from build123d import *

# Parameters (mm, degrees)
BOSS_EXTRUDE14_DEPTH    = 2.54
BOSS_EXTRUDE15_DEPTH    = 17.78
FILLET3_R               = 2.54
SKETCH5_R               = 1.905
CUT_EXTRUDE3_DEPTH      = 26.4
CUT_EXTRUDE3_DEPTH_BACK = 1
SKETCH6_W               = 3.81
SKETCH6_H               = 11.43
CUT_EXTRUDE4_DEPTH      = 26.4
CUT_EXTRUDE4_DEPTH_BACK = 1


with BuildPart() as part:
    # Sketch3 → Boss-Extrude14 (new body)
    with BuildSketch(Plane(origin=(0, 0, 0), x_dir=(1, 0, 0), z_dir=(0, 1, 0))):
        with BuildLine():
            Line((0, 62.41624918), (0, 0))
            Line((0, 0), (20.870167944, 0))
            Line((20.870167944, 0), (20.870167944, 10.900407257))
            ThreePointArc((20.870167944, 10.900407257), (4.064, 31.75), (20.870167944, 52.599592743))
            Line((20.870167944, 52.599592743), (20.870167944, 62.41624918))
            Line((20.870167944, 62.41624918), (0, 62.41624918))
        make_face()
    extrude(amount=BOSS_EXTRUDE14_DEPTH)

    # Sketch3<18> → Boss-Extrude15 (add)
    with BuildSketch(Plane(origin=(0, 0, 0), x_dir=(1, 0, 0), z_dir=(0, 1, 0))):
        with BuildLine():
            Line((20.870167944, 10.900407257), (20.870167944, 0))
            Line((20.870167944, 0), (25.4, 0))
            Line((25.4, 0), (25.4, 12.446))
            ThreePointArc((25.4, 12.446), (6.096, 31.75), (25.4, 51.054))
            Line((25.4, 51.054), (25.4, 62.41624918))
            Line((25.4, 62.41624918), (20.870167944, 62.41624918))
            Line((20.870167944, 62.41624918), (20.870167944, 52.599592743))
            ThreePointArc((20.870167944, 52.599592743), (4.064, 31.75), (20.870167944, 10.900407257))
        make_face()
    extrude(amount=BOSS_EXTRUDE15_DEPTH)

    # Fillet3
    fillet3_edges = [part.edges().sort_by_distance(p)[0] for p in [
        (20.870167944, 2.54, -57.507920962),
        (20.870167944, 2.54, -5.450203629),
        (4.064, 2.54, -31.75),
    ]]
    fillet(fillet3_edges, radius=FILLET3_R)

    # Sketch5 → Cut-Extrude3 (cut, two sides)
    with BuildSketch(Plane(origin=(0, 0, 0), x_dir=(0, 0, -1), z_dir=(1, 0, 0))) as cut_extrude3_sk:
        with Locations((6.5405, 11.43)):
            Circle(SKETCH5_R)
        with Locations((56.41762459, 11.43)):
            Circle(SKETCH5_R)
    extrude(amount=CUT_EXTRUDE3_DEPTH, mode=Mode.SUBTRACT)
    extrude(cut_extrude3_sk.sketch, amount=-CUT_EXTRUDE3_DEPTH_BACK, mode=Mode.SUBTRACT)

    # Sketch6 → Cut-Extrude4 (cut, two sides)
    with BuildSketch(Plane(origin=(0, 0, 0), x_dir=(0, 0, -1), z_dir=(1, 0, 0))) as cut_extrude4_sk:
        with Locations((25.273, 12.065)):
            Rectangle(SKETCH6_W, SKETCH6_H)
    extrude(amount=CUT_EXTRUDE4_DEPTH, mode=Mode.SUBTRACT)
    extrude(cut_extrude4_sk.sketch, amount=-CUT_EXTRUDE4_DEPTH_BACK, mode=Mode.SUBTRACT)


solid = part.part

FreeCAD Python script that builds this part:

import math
import FreeCAD as App
import Part
import Sketcher
from FreeCAD import Vector
Q = App.Units.Quantity


def edges_at(feature, points):
    """Names of the edges that pass closest to the given points."""
    edges = feature.Shape.Edges
    near = lambda p: min(range(len(edges)), key=lambda i: edges[i].distToShape(Part.Vertex(*p))[0])
    return sorted({f"Edge{near(p) + 1}" for p in points})


def add_polygon(sketch, points):
    """Adds a closed chain of lines whose ends are joined by coincident constraints."""
    first, n = sketch.GeometryCount, len(points)
    for a, b in zip(points, points[1:] + points[:1]):
        sketch.addGeometry(Part.LineSegment(App.Vector(*a, 0), App.Vector(*b, 0)), False)
    for i in range(n):
        sketch.addConstraint(Sketcher.Constraint("Coincident", first + i, 2, first + (i + 1) % n, 1))

doc = App.newDocument("Part")
body = doc.addObject("PartDesign::Body", "Body")

# Sketch on XZ plane
sketch1 = body.newObject("Sketcher::SketchObject", "Sketch")
sketch1.AttachmentSupport = (doc.getObject("XZ_Plane"), [""])
sketch1.MapMode = "FlatFace"
sketch1.addGeometry([
    Part.LineSegment(Vector(0, -62.416249, 0), Vector(0, 0, 0)),  # 0
    Part.LineSegment(Vector(0, 0, 0), Vector(20.870168, 0, 0)),  # 1
    Part.LineSegment(Vector(20.870168, 0, 0), Vector(20.870168, -10.900407, 0)),  # 2
    Part.ArcOfCircle(Part.Circle(Vector(25.4, -31.75, 0), Vector(0, 0, 1), 21.336), math.radians(102.25772), math.radians(257.74228)),  # 3
    Part.LineSegment(Vector(20.870168, -52.599593, 0), Vector(20.870168, -62.416249, 0)),  # 4
    Part.LineSegment(Vector(20.870168, -62.416249, 0), Vector(0, -62.416249, 0)),  # 5
], False)
sketch1.addConstraint([
    Sketcher.Constraint("Coincident", 0, 2, 1, 1),
    Sketcher.Constraint("Coincident", 1, 2, 2, 1),
    Sketcher.Constraint("Coincident", 2, 2, 3, 1),
    Sketcher.Constraint("Coincident", 3, 2, 4, 1),
    Sketcher.Constraint("Coincident", 4, 2, 5, 1),
    Sketcher.Constraint("Coincident", 5, 2, 0, 1),
    Sketcher.Constraint("Vertical", 0),
    Sketcher.Constraint("Horizontal", 1),
    Sketcher.Constraint("Vertical", 2),
    Sketcher.Constraint("Vertical", 4),
    Sketcher.Constraint("Horizontal", 5),
    Sketcher.Constraint("Coincident", 0, 2, -1, 1),
    Sketcher.Constraint("Vertical", 2, 2, 3, 2),
    Sketcher.Constraint("Radius", 3, Q("0.84 in")),
    Sketcher.Constraint("DistanceX", -1, 1, 3, 3, Q("1 in")),
    Sketcher.Constraint("DistanceY", 3, 3, -1, 1, Q("1.25 in")),
    Sketcher.Constraint("DistanceY", 0, 1, 0, 2, Q("62.416249 mm")),
    Sketcher.Constraint("DistanceX", 1, 1, 1, 2, Q("20.870168 mm")),
])
pad1 = body.newObject("PartDesign::Pad", "Pad")
pad1.Profile = sketch1
pad1.Length = Q("0.1 in")
pad1.Reversed = True

# Sketch on XZ plane
sketch2 = body.newObject("Sketcher::SketchObject", "Sketch001")
sketch2.AttachmentSupport = (doc.getObject("XZ_Plane"), [""])
sketch2.MapMode = "FlatFace"
sketch2.addGeometry([
    Part.LineSegment(Vector(20.870168, -10.900407, 0), Vector(20.870168, 0, 0)),  # 0
    Part.LineSegment(Vector(20.870168, 0, 0), Vector(25.4, 0, 0)),  # 1
    Part.LineSegment(Vector(25.4, 0, 0), Vector(25.4, -12.446, 0)),  # 2
    Part.ArcOfCircle(Part.Circle(Vector(25.4, -31.75, 0), Vector(0, 0, 1), 19.304), math.radians(90), math.radians(270)),  # 3
    Part.LineSegment(Vector(25.4, -51.054, 0), Vector(25.4, -62.416249, 0)),  # 4
    Part.LineSegment(Vector(25.4, -62.416249, 0), Vector(20.870168, -62.416249, 0)),  # 5
    Part.LineSegment(Vector(20.870168, -62.416249, 0), Vector(20.870168, -52.599593, 0)),  # 6
    Part.ArcOfCircle(Part.Circle(Vector(25.4, -31.75, 0), Vector(0, 0, 1), 21.336), math.radians(102.25772), math.radians(257.74228)),  # 7
], False)
sketch2.addConstraint([
    Sketcher.Constraint("Coincident", 0, 2, 1, 1),
    Sketcher.Constraint("Coincident", 1, 2, 2, 1),
    Sketcher.Constraint("Coincident", 2, 2, 3, 1),
    Sketcher.Constraint("Coincident", 3, 2, 4, 1),
    Sketcher.Constraint("Coincident", 4, 2, 5, 1),
    Sketcher.Constraint("Coincident", 5, 2, 6, 1),
    Sketcher.Constraint("Coincident", 6, 2, 7, 2),
    Sketcher.Constraint("Coincident", 7, 1, 0, 1),
    Sketcher.Constraint("Vertical", 0),
    Sketcher.Constraint("Horizontal", 1),
    Sketcher.Constraint("Vertical", 2),
    Sketcher.Constraint("Vertical", 4),
    Sketcher.Constraint("Horizontal", 5),
    Sketcher.Constraint("Vertical", 6),
    Sketcher.Constraint("Coincident", 7, 3, 3, 3),
    Sketcher.Constraint("PointOnObject", 0, 2, -1),
    Sketcher.Constraint("Vertical", 7, 3, 1, 2),
    Sketcher.Constraint("Vertical", 2, 2, 3, 2),
    Sketcher.Constraint("Vertical", 0, 2, 5, 2),
    Sketcher.Constraint("Radius", 3, Q("0.76 in")),
    Sketcher.Constraint("Radius", 7, Q("0.84 in")),
    Sketcher.Constraint("DistanceX", -1, 1, 3, 3, Q("1 in")),
    Sketcher.Constraint("DistanceY", 2, 2, 2, 1, Q("0.49 in")),
    Sketcher.Constraint("DistanceY", 4, 2, 4, 1, Q("11.362249 mm")),
    Sketcher.Constraint("DistanceX", 1, 1, 1, 2, Q("4.529832 mm")),
])
pad2 = body.newObject("PartDesign::Pad", "Pad001")
pad2.Profile = sketch2
pad2.Length = Q("0.7 in")
pad2.Reversed = True
doc.recompute()

fillet = body.newObject("PartDesign::Fillet", "Fillet")
fillet.Base = (pad2, edges_at(pad2, [(20.87, 2.54, -57.508), (20.87, 2.54, -5.45), (4.064, 2.54, -31.75)]))
fillet.Radius = Q("0.1 in")

# Sketch on YZ plane
sketch3 = body.newObject("Sketcher::SketchObject", "Sketch002")
sketch3.AttachmentSupport = (doc.getObject("YZ_Plane"), [""])
sketch3.MapMode = "FlatFace"
sketch3.addGeometry([
    Part.Circle(Vector(11.43, -6.5405, 0), Vector(0, 0, 1), 1.905),
    Part.Circle(Vector(11.43, -56.417625, 0), Vector(0, 0, 1), 1.905),
], False)
sketch3.addConstraint([
    Sketcher.Constraint("Equal", 0, 1),
    Sketcher.Constraint("Vertical", 0, 3, 1, 3),
    Sketcher.Constraint("Diameter", 0, Q("0.15 in")),
    Sketcher.Constraint("DistanceX", -1, 1, 0, 3, Q("0.45 in")),
    Sketcher.Constraint("DistanceY", 0, 3, -1, 1, Q("0.2575 in")),
    Sketcher.Constraint("DistanceY", 1, 3, -1, 1, Q("56.417625 mm")),
])
pocket1 = body.newObject("PartDesign::Pocket", "Pocket")
pocket1.Profile = sketch3
pocket1.Type = "ThroughAll"
pocket1.Midplane = True

# Sketch on YZ plane
sketch4 = body.newObject("Sketcher::SketchObject", "Sketch003")
sketch4.AttachmentSupport = (doc.getObject("YZ_Plane"), [""])
sketch4.MapMode = "FlatFace"
add_polygon(sketch4, [(17.78, -23.368), (6.35, -23.368), (6.35, -27.178), (17.78, -27.178)])  # lines 0-3
sketch4.addConstraint([
    Sketcher.Constraint("Horizontal", 0),
    Sketcher.Constraint("Vertical", 1),
    Sketcher.Constraint("Horizontal", 2),
    Sketcher.Constraint("Vertical", 3),
    Sketcher.Constraint("DistanceX", 0, 2, 0, 1, Q("0.45 in")),
    Sketcher.Constraint("DistanceY", 1, 2, 1, 1, Q("0.15 in")),
    Sketcher.Constraint("DistanceX", -1, 1, 2, 2, Q("0.7 in")),
    Sketcher.Constraint("DistanceY", 0, 2, -1, 1, Q("0.92 in")),
])
pocket2 = body.newObject("PartDesign::Pocket", "Pocket001")
pocket2.Profile = sketch4
pocket2.Type = "ThroughAll"
pocket2.Midplane = True

doc.recompute()
